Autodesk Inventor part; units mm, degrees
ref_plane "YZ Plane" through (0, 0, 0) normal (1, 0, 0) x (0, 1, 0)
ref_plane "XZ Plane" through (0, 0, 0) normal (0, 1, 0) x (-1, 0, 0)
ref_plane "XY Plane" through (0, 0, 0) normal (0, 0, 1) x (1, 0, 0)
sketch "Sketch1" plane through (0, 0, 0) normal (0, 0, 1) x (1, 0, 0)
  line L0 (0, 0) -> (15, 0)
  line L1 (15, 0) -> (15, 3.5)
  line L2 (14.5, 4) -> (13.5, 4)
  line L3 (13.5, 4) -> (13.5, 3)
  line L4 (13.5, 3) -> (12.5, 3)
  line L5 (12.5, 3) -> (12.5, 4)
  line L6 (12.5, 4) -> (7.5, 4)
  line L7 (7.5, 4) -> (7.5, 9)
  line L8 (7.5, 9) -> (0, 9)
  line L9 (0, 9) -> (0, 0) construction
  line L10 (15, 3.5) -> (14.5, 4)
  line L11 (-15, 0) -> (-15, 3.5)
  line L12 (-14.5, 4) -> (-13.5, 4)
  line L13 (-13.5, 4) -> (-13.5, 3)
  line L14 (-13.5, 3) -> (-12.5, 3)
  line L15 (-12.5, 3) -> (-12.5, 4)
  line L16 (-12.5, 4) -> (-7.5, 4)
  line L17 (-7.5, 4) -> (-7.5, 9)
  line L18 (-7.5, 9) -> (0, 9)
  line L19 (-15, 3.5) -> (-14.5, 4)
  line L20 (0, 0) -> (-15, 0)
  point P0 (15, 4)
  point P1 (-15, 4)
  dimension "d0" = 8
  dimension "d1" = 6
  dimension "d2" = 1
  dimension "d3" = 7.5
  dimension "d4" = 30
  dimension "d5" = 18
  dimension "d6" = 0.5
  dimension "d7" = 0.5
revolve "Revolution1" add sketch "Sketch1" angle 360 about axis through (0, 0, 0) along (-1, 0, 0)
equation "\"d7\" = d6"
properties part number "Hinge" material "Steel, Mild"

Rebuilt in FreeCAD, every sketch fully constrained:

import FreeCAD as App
import Part
import Sketcher
Q = App.Units.Quantity


def add_polygon(sketch, points):
    """Adds a closed chain of lines whose ends are joined by coincident constraints."""
    first, n = sketch.GeometryCount, len(points)
    for a, b in zip(points, points[1:] + points[:1]):
        sketch.addGeometry(Part.LineSegment(App.Vector(*a, 0), App.Vector(*b, 0)), False)
    for i in range(n):
        sketch.addConstraint(Sketcher.Constraint("Coincident", first + i, 2, first + (i + 1) % n, 1))

doc = App.newDocument("Part")
body = doc.addObject("PartDesign::Body", "Body")

# Sketch on XY plane
sketch1 = doc.addObject("Sketcher::SketchObject", "Sketch")
body.addObject(sketch1)
sketch1.AttachmentSupport = (doc.XY_Plane, [""])
sketch1.MapMode = "FlatFace"
add_polygon(sketch1, [(-15, 0), (15, 0), (15, 3.5), (14.5, 4), (13.5, 4), (13.5, 3), (12.5, 3), (12.5, 4), (7.5, 4), (7.5, 9), (-7.5, 9), (-7.5, 4), (-12.5, 4), (-12.5, 3), (-13.5, 3), (-13.5, 4), (-14.5, 4), (-15, 3.5)])  # lines 0-17
sketch1.addConstraint([
    Sketcher.Constraint("Horizontal", 0),
    Sketcher.Constraint("Vertical", 1),
    Sketcher.Constraint("Horizontal", 3),
    Sketcher.Constraint("Vertical", 4),
    Sketcher.Constraint("Horizontal", 5),
    Sketcher.Constraint("Vertical", 6),
    Sketcher.Constraint("Horizontal", 7),
    Sketcher.Constraint("Vertical", 8),
    Sketcher.Constraint("Horizontal", 9),
    Sketcher.Constraint("Vertical", 10),
    Sketcher.Constraint("Horizontal", 11),
    Sketcher.Constraint("Vertical", 12),
    Sketcher.Constraint("Horizontal", 13),
    Sketcher.Constraint("Vertical", 14),
    Sketcher.Constraint("Horizontal", 15),
    Sketcher.Constraint("Vertical", 17),
    Sketcher.Constraint("Symmetric", 0, 2, 17, 2, -1, 1),
    Sketcher.Constraint("Symmetric", 7, 2, 10, 2, -2),
    Sketcher.Constraint("Symmetric", 5, 2, 12, 2, -2),
    Sketcher.Constraint("Symmetric", 3, 2, 14, 2, -2),
    Sketcher.Constraint("Perpendicular", 2, 16),
    Sketcher.Constraint("Horizontal", 3, 2, 6, 2),
    Sketcher.Constraint("Horizontal", 1, 2, 16, 2),
    Sketcher.Constraint("Equal", 3, 5),
    Sketcher.Constraint("Equal", 13, 15),
    Sketcher.Constraint("Equal", 15, 4),
    Sketcher.Constraint("Equal", 11, 8),
    Sketcher.Constraint("DistanceX", 0, 1, 0, 2, Q("30 mm")),
    Sketcher.Constraint("DistanceX", 3, 2, 3, 1, Q("1 mm")),
    Sketcher.Constraint("DistanceX", 7, 2, 3, 2, Q("6 mm")),
    Sketcher.Constraint("DistanceX", -1, 1, 7, 2, Q("7.5 mm")),
    Sketcher.Constraint("DistanceY", 1, 1, 1, 2, Q("3.5 mm")),
])
revolution = doc.addObject("PartDesign::Revolution", "Revolution")
body.addObject(revolution)
revolution.Profile = sketch1
revolution.ReferenceAxis = (sketch1, ["H_Axis"])
revolution.Angle = 360

doc.recompute()
